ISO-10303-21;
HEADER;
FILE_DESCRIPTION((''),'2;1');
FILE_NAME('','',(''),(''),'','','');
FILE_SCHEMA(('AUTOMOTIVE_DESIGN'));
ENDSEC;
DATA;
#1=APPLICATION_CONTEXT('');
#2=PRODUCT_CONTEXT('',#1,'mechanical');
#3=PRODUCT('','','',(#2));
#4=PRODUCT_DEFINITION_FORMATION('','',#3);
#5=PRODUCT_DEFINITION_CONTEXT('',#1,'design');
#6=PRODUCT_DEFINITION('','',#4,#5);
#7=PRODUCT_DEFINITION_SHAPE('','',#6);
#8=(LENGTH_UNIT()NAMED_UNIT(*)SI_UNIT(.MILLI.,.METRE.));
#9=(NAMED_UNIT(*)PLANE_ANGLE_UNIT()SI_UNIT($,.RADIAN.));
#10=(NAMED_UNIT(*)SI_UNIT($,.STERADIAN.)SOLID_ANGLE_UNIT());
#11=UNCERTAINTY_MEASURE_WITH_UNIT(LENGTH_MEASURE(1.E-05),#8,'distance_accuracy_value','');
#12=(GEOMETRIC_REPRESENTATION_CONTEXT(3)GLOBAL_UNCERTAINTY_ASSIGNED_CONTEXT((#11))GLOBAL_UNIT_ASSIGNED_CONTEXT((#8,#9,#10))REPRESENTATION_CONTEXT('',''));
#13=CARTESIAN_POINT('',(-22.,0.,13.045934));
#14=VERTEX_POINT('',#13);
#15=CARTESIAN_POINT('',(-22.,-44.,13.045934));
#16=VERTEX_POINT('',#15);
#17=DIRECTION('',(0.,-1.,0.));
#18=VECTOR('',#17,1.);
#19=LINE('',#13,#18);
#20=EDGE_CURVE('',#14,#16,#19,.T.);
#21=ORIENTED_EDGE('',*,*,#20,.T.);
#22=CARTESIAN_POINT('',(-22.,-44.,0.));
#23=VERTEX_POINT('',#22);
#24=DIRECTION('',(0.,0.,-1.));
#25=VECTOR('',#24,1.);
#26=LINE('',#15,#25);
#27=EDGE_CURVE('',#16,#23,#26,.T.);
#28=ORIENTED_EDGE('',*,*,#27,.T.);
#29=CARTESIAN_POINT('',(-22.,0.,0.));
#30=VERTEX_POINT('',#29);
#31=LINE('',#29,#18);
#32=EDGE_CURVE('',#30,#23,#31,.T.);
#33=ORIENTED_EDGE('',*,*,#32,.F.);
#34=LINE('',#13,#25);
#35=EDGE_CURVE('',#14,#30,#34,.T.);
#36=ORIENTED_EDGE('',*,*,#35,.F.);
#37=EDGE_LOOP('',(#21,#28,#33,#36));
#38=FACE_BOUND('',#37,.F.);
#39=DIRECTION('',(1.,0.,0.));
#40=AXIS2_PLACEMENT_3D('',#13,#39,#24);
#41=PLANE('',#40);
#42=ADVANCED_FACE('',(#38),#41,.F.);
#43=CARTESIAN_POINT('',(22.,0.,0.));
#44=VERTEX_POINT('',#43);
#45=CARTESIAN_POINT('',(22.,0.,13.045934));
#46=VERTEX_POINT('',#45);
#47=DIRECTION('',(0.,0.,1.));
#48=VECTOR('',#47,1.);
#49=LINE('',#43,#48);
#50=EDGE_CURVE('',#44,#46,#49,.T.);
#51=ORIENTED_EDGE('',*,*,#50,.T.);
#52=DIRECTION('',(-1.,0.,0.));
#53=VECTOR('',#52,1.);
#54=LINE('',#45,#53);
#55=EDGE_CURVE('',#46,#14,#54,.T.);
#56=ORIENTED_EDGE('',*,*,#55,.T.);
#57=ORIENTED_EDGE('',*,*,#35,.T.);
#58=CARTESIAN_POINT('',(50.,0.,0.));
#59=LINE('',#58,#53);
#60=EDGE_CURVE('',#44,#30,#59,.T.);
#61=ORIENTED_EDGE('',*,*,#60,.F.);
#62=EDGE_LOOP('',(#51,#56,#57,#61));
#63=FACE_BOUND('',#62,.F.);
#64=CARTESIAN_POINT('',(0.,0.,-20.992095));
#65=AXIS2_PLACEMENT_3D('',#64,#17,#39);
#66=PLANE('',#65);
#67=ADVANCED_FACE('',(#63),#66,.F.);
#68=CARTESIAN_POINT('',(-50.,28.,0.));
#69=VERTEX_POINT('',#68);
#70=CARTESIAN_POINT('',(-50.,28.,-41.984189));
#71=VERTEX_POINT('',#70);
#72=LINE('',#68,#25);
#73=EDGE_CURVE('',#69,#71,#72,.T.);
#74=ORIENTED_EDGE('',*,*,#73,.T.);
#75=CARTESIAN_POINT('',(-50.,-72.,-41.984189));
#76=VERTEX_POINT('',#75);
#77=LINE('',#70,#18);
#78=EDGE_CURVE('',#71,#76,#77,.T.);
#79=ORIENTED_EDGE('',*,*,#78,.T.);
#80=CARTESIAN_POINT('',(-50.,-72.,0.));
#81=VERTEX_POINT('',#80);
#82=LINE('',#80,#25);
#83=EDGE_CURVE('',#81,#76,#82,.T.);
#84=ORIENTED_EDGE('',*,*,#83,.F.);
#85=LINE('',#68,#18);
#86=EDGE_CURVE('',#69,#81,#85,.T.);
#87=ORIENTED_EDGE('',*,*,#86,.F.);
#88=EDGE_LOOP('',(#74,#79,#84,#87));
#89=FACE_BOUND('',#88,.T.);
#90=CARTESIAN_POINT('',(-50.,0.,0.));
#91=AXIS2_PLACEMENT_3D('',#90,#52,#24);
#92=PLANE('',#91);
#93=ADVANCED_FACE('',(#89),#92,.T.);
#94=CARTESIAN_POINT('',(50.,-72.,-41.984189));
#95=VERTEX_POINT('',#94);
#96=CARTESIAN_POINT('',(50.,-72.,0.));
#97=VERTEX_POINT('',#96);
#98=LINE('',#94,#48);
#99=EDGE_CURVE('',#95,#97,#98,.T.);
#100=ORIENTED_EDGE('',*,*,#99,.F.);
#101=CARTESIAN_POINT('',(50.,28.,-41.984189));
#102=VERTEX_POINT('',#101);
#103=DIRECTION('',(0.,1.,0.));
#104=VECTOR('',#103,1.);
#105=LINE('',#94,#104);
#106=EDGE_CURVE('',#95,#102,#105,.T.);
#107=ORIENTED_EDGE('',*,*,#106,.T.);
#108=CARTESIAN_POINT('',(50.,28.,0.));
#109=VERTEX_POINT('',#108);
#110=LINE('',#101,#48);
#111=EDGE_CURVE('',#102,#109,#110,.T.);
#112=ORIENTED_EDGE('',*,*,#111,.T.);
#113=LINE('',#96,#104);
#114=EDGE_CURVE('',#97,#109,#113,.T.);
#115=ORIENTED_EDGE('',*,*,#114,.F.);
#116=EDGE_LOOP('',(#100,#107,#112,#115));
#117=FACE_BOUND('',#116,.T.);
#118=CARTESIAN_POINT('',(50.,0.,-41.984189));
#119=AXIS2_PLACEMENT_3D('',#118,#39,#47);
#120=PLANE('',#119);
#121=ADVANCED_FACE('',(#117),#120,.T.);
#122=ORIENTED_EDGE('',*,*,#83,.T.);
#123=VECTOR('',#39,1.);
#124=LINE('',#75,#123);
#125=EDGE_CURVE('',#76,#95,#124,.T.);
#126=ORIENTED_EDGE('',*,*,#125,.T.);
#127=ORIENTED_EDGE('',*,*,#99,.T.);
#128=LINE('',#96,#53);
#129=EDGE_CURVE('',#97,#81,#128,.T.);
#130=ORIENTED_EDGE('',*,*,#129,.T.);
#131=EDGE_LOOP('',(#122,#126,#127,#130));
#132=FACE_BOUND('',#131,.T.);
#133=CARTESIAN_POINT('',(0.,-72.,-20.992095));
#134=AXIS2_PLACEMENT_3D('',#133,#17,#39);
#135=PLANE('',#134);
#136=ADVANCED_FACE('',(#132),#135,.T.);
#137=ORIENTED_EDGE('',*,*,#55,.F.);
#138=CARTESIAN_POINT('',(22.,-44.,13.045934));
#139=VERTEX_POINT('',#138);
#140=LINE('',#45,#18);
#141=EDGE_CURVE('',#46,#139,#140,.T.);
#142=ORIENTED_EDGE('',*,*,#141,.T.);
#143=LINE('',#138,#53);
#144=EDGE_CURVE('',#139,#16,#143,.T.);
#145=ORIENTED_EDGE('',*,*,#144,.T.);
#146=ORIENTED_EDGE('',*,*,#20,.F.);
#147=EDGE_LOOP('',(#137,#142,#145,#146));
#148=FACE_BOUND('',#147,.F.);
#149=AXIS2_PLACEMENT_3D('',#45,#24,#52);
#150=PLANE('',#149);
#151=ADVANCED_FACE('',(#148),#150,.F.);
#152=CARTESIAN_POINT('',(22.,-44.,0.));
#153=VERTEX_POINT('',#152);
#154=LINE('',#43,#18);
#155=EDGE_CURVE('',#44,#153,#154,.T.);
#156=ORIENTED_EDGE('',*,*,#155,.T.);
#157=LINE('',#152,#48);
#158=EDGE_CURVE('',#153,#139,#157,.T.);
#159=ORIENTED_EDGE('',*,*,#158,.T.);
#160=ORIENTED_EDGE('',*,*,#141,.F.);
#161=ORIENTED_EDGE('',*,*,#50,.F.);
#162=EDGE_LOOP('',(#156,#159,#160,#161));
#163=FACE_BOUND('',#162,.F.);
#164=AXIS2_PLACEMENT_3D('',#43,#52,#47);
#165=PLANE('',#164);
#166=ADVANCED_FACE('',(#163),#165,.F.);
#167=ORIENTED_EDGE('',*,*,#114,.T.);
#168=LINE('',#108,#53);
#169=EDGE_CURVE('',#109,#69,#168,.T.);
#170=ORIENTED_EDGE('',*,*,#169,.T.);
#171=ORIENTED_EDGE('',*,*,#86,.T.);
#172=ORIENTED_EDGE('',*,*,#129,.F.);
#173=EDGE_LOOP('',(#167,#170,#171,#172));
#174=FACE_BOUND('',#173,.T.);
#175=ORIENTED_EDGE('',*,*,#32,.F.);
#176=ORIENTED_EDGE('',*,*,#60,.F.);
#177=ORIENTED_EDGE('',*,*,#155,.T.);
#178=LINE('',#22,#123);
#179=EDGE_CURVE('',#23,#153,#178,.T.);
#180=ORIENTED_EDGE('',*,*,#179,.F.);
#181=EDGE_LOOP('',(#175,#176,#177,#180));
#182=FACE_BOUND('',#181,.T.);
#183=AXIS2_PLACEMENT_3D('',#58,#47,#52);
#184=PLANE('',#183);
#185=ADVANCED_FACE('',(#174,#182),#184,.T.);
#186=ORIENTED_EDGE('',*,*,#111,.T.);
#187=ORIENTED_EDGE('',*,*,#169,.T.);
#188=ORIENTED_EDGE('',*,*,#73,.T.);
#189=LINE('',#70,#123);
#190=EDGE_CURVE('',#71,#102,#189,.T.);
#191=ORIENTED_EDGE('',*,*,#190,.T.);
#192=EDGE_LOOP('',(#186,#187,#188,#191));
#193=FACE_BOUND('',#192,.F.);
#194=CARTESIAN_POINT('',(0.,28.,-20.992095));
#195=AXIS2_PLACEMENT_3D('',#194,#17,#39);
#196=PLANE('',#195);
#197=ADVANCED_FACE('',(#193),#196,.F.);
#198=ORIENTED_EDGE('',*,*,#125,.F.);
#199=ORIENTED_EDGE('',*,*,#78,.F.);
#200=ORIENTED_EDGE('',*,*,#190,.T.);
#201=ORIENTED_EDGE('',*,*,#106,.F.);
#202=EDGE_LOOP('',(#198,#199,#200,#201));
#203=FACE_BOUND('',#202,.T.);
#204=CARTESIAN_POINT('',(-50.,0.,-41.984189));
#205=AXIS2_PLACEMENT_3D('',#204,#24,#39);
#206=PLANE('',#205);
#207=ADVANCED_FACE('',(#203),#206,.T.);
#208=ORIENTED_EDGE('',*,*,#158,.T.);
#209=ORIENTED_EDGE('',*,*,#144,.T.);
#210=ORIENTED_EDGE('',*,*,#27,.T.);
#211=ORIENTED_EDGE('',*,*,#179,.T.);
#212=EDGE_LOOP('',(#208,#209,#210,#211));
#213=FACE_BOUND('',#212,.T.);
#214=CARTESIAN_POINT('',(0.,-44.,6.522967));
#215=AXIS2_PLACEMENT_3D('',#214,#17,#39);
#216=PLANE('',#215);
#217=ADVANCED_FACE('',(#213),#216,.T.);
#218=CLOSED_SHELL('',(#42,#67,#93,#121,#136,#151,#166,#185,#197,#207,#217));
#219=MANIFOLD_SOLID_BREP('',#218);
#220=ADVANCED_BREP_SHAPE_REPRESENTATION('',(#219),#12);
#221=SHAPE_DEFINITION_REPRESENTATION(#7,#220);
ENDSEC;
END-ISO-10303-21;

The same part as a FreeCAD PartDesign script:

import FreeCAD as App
import Part
import Sketcher

V = App.Vector
Q = App.Units.Quantity

doc = App.newDocument("Part")
body = doc.addObject("PartDesign::Body", "Body")

sketch1 = body.newObject("Sketcher::SketchObject", "Sketch")
sketch1.AttachmentSupport = (doc.getObject("XZ_Plane"), [""])
sketch1.MapMode = "FlatFace"
sketch1.addGeometry([
    Part.LineSegment(V(22, 13, 0), V(-22, 13, 0)),
    Part.LineSegment(V(-22, 13, 0), V(-22, 0, 0)),
    Part.LineSegment(V(-22, 0, 0), V(22, 0, 0)),
    Part.LineSegment(V(22, 0, 0), V(22, 13, 0)),
], False)
sketch1.addConstraint([
    Sketcher.Constraint("Coincident", 0, 2, 1, 1),
    Sketcher.Constraint("Coincident", 1, 2, 2, 1),
    Sketcher.Constraint("Coincident", 2, 2, 3, 1),
    Sketcher.Constraint("Coincident", 3, 2, 0, 1),
    Sketcher.Constraint("Horizontal", 0),
    Sketcher.Constraint("Vertical", 1),
    Sketcher.Constraint("Horizontal", 2),
    Sketcher.Constraint("Vertical", 3),
    Sketcher.Constraint("Symmetric", 1, 2, 2, 2, -1, 1),
    Sketcher.Constraint("DistanceX", 0, 2, 0, 1, Q("44 mm")),
    Sketcher.Constraint("DistanceY", 1, 2, 1, 1, Q("13.045934 mm")),
])
pad1 = body.newObject("PartDesign::Pad", "Pad")
pad1.Profile = sketch1
pad1.Length = 44

sketch2 = body.newObject("Sketcher::SketchObject", "Sketch001")
sketch2.AttachmentSupport = (doc.getObject("XZ_Plane"), [""])
sketch2.MapMode = "FlatFace"
sketch2.addGeometry([
    Part.LineSegment(V(50, 0, 0), V(-50, 0, 0)),
    Part.LineSegment(V(-50, 0, 0), V(-50, -42, 0)),
    Part.LineSegment(V(-50, -42, 0), V(50, -42, 0)),
    Part.LineSegment(V(50, -42, 0), V(50, 0, 0)),
], False)
sketch2.addConstraint([
    Sketcher.Constraint("Coincident", 0, 2, 1, 1),
    Sketcher.Constraint("Coincident", 1, 2, 2, 1),
    Sketcher.Constraint("Coincident", 2, 2, 3, 1),
    Sketcher.Constraint("Coincident", 3, 2, 0, 1),
    Sketcher.Constraint("Horizontal", 0),
    Sketcher.Constraint("Vertical", 1),
    Sketcher.Constraint("Horizontal", 2),
    Sketcher.Constraint("Vertical", 3),
    Sketcher.Constraint("Symmetric", 0, 2, 3, 2, -1, 1),
    Sketcher.Constraint("DistanceX", 0, 2, 0, 1, Q("100 mm")),
    Sketcher.Constraint("DistanceY", 1, 2, 1, 1, Q("41.984189 mm")),
])
pad2 = body.newObject("PartDesign::Pad", "Pad001")
pad2.Profile = sketch2
pad2.Length = 72

sketch3 = body.newObject("Sketcher::SketchObject", "Sketch002")
sketch3.AttachmentSupport = (doc.getObject("XZ_Plane"), [""])
sketch3.MapMode = "FlatFace"
sketch3.addGeometry([
    Part.LineSegment(V(50, 0, 0), V(-50, 0, 0)),
    Part.LineSegment(V(-50, 0, 0), V(-50, -42, 0)),
    Part.LineSegment(V(-50, -42, 0), V(50, -42, 0)),
    Part.LineSegment(V(50, -42, 0), V(50, 0, 0)),
], False)
sketch3.addConstraint([
    Sketcher.Constraint("Coincident", 0, 2, 1, 1),
    Sketcher.Constraint("Coincident", 1, 2, 2, 1),
    Sketcher.Constraint("Coincident", 2, 2, 3, 1),
    Sketcher.Constraint("Coincident", 3, 2, 0, 1),
    Sketcher.Constraint("Horizontal", 0),
    Sketcher.Constraint("Vertical", 1),
    Sketcher.Constraint("Horizontal", 2),
    Sketcher.Constraint("Vertical", 3),
    Sketcher.Constraint("Symmetric", 0, 2, 3, 2, -1, 1),
    Sketcher.Constraint("DistanceX", 0, 2, 0, 1, Q("100 mm")),
    Sketcher.Constraint("DistanceY", 1, 2, 1, 1, Q("41.984189 mm")),
])
pad3 = body.newObject("PartDesign::Pad", "Pad002")
pad3.Profile = sketch3
pad3.Length = 28
pad3.Reversed = True

doc.recompute()
